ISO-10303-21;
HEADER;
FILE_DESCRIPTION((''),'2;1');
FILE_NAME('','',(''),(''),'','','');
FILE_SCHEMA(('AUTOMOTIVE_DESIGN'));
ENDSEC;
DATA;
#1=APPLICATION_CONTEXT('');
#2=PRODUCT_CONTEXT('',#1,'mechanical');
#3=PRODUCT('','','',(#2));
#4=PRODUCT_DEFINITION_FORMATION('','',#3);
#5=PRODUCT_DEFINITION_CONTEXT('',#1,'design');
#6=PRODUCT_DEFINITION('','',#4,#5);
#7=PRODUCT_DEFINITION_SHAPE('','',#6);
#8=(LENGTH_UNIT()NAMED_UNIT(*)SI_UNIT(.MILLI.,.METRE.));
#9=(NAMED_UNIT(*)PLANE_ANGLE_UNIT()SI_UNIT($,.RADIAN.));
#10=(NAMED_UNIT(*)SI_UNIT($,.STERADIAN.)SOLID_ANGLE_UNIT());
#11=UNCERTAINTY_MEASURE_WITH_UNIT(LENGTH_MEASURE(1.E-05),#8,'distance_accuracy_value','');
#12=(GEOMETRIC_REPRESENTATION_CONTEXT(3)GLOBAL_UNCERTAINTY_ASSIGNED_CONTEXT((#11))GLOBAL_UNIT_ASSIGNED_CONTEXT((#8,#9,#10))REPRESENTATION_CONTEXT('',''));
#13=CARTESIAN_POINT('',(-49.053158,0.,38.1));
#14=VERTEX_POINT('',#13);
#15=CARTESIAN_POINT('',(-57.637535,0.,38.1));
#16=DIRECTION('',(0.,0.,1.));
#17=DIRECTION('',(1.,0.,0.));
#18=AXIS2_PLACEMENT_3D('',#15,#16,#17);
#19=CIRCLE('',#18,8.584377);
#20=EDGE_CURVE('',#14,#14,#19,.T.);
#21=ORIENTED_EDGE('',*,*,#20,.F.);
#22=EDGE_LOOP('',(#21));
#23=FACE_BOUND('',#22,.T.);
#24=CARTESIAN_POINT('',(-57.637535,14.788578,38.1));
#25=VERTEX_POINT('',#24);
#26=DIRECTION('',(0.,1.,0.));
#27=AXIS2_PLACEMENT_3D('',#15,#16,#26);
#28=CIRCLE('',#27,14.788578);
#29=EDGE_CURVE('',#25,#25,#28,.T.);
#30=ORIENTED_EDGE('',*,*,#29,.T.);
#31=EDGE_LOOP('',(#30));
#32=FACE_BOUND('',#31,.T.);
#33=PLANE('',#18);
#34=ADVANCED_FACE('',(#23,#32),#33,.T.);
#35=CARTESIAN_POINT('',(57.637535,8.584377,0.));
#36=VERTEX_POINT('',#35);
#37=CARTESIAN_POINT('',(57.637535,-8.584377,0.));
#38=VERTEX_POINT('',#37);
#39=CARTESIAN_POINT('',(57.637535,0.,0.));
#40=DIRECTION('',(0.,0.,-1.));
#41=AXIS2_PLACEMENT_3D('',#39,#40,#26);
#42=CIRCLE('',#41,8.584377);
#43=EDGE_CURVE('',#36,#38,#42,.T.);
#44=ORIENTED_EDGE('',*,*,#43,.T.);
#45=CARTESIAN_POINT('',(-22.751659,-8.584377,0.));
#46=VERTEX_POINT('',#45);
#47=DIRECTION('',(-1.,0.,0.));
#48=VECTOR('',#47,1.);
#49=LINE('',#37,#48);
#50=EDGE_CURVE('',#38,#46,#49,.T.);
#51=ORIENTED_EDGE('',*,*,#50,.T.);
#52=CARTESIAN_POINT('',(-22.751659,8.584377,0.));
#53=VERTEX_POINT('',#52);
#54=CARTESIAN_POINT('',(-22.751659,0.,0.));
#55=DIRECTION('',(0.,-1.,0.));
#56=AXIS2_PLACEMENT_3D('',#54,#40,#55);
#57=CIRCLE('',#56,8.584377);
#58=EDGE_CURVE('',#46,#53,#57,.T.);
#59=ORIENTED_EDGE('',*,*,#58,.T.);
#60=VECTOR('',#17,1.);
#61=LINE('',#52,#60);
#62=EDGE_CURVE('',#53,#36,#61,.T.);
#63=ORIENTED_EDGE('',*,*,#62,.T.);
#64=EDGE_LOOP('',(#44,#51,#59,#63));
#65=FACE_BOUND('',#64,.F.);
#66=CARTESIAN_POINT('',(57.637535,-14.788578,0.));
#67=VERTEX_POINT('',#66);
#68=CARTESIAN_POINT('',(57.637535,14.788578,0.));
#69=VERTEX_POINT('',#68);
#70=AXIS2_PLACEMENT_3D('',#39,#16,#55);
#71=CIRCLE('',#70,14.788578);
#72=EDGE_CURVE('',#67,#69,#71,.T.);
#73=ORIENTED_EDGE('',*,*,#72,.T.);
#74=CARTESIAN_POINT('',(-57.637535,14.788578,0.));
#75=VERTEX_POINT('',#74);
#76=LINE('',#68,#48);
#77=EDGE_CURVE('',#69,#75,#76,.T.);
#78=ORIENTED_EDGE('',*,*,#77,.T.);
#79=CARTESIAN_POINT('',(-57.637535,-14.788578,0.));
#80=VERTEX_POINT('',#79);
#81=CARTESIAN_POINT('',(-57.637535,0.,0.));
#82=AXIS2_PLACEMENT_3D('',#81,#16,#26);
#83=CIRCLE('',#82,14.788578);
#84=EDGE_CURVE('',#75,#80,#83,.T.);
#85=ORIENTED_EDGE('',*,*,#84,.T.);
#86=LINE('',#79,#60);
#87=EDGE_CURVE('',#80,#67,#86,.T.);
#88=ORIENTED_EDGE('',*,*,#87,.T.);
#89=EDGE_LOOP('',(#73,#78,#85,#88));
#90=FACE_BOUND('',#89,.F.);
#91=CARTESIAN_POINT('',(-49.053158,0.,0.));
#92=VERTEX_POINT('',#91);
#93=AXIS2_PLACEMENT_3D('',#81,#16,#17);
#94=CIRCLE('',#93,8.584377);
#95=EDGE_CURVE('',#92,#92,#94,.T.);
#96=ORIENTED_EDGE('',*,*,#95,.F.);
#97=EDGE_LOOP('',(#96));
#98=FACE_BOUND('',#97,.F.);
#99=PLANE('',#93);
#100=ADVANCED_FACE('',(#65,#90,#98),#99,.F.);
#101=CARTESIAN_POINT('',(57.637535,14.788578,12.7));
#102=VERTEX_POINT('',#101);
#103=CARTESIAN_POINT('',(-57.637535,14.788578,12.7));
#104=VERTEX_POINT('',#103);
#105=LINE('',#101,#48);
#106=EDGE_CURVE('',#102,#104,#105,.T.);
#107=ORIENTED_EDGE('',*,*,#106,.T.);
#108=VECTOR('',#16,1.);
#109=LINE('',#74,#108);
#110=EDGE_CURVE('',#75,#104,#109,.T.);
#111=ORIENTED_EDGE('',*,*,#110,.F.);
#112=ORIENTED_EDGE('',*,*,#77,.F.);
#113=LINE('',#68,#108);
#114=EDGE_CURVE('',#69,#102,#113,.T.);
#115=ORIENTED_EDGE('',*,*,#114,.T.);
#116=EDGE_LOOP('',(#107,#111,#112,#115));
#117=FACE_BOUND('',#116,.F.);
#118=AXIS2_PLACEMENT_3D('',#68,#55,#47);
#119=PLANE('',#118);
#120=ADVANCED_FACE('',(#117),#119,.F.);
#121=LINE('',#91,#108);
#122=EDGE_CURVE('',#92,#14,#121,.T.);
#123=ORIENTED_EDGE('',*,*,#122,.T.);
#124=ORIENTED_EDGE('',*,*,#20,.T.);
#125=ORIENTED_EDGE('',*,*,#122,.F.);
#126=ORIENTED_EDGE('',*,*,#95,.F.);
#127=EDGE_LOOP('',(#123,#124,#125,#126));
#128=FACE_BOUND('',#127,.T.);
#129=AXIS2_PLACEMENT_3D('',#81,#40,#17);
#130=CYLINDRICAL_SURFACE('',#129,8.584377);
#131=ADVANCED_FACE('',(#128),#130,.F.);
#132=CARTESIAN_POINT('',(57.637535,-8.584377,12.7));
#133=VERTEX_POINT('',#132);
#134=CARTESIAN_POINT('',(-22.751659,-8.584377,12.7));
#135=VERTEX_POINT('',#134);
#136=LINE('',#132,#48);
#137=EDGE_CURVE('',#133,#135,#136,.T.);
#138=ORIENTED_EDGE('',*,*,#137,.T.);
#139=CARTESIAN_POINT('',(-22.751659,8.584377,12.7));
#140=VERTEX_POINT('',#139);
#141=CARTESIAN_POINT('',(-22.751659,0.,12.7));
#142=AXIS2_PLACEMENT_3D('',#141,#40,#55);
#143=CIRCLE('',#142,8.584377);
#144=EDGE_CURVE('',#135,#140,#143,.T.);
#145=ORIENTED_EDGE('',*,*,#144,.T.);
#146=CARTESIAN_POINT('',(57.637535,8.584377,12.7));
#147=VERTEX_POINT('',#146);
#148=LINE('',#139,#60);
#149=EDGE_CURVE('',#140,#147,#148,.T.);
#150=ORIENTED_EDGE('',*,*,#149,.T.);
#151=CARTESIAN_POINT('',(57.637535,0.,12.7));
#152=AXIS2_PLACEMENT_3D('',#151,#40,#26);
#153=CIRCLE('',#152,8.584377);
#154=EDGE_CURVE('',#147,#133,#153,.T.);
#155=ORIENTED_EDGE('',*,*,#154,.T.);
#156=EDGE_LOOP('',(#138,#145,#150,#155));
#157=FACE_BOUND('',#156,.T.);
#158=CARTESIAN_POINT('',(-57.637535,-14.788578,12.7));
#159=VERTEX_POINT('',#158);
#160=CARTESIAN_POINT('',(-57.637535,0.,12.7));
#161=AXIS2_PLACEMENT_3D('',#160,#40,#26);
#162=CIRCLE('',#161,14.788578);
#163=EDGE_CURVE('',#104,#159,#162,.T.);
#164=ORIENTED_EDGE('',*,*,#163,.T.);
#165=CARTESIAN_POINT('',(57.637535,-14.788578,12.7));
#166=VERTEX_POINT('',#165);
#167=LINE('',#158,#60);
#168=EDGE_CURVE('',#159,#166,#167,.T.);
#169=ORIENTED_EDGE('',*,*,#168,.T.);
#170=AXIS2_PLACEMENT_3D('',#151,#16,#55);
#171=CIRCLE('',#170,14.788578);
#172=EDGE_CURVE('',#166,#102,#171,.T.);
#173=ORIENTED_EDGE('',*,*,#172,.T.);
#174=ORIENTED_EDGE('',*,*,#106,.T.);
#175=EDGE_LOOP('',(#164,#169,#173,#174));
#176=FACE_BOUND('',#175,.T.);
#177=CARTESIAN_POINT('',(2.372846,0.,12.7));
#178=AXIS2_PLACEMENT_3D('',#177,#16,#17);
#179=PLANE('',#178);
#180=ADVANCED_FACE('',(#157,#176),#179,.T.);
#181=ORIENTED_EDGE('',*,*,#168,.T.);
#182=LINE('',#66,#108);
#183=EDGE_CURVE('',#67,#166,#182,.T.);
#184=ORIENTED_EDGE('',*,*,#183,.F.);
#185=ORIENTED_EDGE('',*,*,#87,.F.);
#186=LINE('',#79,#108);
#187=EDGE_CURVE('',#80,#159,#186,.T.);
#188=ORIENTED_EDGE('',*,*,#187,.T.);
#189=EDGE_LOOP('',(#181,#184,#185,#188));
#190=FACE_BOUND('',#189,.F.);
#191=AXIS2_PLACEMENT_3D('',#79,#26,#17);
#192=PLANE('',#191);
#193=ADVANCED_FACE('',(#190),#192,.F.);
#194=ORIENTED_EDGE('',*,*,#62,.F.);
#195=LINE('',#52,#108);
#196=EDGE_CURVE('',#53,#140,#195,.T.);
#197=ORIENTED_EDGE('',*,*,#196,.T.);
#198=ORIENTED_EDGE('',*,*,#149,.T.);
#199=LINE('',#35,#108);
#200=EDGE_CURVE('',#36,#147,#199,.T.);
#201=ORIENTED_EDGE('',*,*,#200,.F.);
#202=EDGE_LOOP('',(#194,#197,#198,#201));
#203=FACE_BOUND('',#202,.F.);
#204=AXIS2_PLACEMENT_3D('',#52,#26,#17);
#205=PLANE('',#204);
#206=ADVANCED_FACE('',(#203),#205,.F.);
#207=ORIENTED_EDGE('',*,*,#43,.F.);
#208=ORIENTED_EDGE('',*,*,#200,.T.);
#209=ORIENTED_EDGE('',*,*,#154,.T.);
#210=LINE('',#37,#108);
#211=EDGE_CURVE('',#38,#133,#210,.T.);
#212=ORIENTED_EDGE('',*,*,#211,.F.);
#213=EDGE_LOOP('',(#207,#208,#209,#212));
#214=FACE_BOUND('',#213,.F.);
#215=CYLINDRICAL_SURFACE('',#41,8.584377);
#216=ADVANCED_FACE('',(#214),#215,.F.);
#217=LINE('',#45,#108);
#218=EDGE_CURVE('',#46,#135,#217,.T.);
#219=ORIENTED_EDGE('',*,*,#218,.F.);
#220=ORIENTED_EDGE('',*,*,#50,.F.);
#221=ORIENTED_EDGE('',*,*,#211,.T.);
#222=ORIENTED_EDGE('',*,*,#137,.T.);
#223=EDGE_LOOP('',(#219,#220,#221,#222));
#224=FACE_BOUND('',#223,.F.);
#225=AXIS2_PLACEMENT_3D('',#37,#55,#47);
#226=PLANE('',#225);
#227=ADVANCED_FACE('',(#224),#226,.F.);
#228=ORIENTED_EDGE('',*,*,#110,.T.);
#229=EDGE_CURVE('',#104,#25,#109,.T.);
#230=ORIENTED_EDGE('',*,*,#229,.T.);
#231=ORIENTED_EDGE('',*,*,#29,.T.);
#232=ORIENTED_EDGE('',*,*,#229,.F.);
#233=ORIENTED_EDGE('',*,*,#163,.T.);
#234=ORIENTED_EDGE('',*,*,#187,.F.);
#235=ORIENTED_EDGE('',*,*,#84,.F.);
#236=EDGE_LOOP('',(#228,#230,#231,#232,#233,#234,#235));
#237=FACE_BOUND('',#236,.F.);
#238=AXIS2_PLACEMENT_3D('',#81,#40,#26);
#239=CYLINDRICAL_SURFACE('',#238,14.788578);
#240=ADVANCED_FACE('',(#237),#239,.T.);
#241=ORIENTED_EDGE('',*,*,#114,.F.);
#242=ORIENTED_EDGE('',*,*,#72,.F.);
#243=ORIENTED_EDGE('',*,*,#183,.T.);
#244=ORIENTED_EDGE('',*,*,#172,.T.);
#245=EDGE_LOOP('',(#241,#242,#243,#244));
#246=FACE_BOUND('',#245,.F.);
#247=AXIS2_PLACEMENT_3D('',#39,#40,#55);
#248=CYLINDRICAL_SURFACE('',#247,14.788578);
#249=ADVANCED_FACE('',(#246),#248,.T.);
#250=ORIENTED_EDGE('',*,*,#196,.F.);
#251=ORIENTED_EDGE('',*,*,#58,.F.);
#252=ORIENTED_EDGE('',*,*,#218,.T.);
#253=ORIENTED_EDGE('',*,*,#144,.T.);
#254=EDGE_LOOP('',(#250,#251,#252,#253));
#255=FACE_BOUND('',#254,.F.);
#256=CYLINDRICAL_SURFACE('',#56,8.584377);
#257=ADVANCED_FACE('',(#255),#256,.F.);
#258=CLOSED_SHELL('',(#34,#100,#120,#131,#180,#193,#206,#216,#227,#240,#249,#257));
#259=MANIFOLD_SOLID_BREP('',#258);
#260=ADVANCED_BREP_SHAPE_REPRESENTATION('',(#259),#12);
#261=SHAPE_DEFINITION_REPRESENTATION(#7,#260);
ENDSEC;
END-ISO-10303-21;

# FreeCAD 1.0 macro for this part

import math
import FreeCAD as App
import Part
import Sketcher
Q = App.Units.Quantity

doc = App.newDocument("Part")
body = doc.addObject("PartDesign::Body", "Body")

# Sketch on XY plane
sketch1 = body.newObject("Sketcher::SketchObject", "Sketch")
sketch1.AttachmentSupport = (doc.getObject("XY_Plane"), [""])
sketch1.MapMode = "FlatFace"
sketch1.addGeometry([
    Part.ArcOfCircle(Part.Circle(App.Vector(58, 0, 0), App.Vector(0, 0, 1), 15), math.radians(-90), math.radians(90)),  # 0
    Part.LineSegment(App.Vector(58, 15, 0), App.Vector(-58, 15, 0)),  # 1
    Part.ArcOfCircle(Part.Circle(App.Vector(-58, 0, 0), App.Vector(0, 0, 1), 15), math.radians(-90), math.radians(90)),  # 2
    Part.LineSegment(App.Vector(-58, -15, 0), App.Vector(58, -15, 0)),  # 3
    Part.LineSegment(App.Vector(58, -9, 0), App.Vector(-23, -9, 0)),  # 4
    Part.ArcOfCircle(Part.Circle(App.Vector(-23, 0, 0), App.Vector(0, 0, 1), 9), math.radians(90), math.radians(270)),  # 5
    Part.LineSegment(App.Vector(-23, 9, 0), App.Vector(58, 9, 0)),  # 6
    Part.ArcOfCircle(Part.Circle(App.Vector(58, 0, 0), App.Vector(0, 0, 1), 9), math.radians(-90), math.radians(90)),  # 7
], False)
sketch1.addConstraint([
    Sketcher.Constraint("Tangent", 0, 2, 1, 1),
    Sketcher.Constraint("Tangent", 1, 2, 2, 2),
    Sketcher.Constraint("Tangent", 2, 1, 3, 1),
    Sketcher.Constraint("Tangent", 3, 2, 0, 1),
    Sketcher.Constraint("Tangent", 4, 2, 5, 2),
    Sketcher.Constraint("Tangent", 5, 1, 6, 1),
    Sketcher.Constraint("Tangent", 6, 2, 7, 2),
    Sketcher.Constraint("Tangent", 7, 1, 4, 1),
    Sketcher.Constraint("Horizontal", 1),
    Sketcher.Constraint("Horizontal", 3),
    Sketcher.Constraint("Horizontal", 4),
    Sketcher.Constraint("Horizontal", 6),
    Sketcher.Constraint("Coincident", 7, 3, 0, 3),
    Sketcher.Constraint("Symmetric", 0, 3, 2, 3, -1, 1),
    Sketcher.Constraint("Radius", 0, 14.788578),
    Sketcher.Constraint("Radius", 5, 8.584377),
    Sketcher.Constraint("DistanceX", 1, 2, 1, 1, 115.27507),
    Sketcher.Constraint("DistanceX", 4, 2, 4, 1, 80.389194),
])
pad1 = body.newObject("PartDesign::Pad", "Pad")
pad1.Profile = sketch1
pad1.Length = Q("0.5 in")

# Sketch on XY plane
sketch2 = body.newObject("Sketcher::SketchObject", "Sketch001")
sketch2.AttachmentSupport = (doc.getObject("XY_Plane"), [""])
sketch2.MapMode = "FlatFace"
sketch2.addGeometry([
    Part.Circle(App.Vector(-58, 0, 0), App.Vector(0, 0, 1), 15),
    Part.Circle(App.Vector(-58, 0, 0), App.Vector(0, 0, 1), 9),
], False)
sketch2.addConstraint([
    Sketcher.Constraint("Coincident", 1, 3, 0, 3),
    Sketcher.Constraint("PointOnObject", 0, 3, -1),
    Sketcher.Constraint("Diameter", 0, 29.577156),
    Sketcher.Constraint("Diameter", 1, 17.168754),
    Sketcher.Constraint("DistanceX", 0, 3, -1, 1, 57.637535),
])
pad2 = body.newObject("PartDesign::Pad", "Pad001")
pad2.Profile = sketch2
pad2.Length = Q("1.5 in")

doc.recompute()
